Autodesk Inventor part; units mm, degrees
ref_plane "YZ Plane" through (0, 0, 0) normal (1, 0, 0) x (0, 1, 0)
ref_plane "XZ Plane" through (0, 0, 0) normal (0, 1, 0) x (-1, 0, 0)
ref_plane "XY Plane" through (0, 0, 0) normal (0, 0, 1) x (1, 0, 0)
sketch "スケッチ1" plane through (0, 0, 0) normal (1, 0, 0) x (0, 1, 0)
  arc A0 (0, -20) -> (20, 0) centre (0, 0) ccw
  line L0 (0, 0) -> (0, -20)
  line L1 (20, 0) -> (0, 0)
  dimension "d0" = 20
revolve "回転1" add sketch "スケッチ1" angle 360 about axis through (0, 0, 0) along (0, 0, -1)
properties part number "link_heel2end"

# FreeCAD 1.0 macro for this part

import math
import FreeCAD as App
import Part
import Sketcher
from FreeCAD import Vector
Q = App.Units.Quantity

doc = App.newDocument("Part")
body = doc.addObject("PartDesign::Body", "Body")

# Sketch on YZ plane
sketch1 = body.newObject("Sketcher::SketchObject", "Sketch")
sketch1.AttachmentSupport = (doc.getObject("YZ_Plane"), [""])
sketch1.MapMode = "FlatFace"
sketch1.addGeometry([
    Part.LineSegment(Vector(0, 0, 0), Vector(0, -20, 0)),
    Part.ArcOfCircle(Part.Circle(Vector(0, 0, 0), Vector(0, 0, 1), 20), math.radians(-90), math.radians(0)),
    Part.LineSegment(Vector(20, 0, 0), Vector(0, 0, 0)),
], False)
sketch1.addConstraint([
    Sketcher.Constraint("Coincident", 0, 2, 1, 1),
    Sketcher.Constraint("Coincident", 1, 2, 2, 1),
    Sketcher.Constraint("Coincident", 2, 2, 0, 1),
    Sketcher.Constraint("Vertical", 0),
    Sketcher.Constraint("Horizontal", 2),
    Sketcher.Constraint("Coincident", 1, 3, -1, 1),
    Sketcher.Constraint("Coincident", 2, 2, -1, 1),
    Sketcher.Constraint("Radius", 1, Q("20 mm")),
])
revolution = body.newObject("PartDesign::Revolution", "Revolution")
revolution.Profile = sketch1
revolution.ReferenceAxis = (sketch1, ["V_Axis"])
revolution.Angle = 360

doc.recompute()
